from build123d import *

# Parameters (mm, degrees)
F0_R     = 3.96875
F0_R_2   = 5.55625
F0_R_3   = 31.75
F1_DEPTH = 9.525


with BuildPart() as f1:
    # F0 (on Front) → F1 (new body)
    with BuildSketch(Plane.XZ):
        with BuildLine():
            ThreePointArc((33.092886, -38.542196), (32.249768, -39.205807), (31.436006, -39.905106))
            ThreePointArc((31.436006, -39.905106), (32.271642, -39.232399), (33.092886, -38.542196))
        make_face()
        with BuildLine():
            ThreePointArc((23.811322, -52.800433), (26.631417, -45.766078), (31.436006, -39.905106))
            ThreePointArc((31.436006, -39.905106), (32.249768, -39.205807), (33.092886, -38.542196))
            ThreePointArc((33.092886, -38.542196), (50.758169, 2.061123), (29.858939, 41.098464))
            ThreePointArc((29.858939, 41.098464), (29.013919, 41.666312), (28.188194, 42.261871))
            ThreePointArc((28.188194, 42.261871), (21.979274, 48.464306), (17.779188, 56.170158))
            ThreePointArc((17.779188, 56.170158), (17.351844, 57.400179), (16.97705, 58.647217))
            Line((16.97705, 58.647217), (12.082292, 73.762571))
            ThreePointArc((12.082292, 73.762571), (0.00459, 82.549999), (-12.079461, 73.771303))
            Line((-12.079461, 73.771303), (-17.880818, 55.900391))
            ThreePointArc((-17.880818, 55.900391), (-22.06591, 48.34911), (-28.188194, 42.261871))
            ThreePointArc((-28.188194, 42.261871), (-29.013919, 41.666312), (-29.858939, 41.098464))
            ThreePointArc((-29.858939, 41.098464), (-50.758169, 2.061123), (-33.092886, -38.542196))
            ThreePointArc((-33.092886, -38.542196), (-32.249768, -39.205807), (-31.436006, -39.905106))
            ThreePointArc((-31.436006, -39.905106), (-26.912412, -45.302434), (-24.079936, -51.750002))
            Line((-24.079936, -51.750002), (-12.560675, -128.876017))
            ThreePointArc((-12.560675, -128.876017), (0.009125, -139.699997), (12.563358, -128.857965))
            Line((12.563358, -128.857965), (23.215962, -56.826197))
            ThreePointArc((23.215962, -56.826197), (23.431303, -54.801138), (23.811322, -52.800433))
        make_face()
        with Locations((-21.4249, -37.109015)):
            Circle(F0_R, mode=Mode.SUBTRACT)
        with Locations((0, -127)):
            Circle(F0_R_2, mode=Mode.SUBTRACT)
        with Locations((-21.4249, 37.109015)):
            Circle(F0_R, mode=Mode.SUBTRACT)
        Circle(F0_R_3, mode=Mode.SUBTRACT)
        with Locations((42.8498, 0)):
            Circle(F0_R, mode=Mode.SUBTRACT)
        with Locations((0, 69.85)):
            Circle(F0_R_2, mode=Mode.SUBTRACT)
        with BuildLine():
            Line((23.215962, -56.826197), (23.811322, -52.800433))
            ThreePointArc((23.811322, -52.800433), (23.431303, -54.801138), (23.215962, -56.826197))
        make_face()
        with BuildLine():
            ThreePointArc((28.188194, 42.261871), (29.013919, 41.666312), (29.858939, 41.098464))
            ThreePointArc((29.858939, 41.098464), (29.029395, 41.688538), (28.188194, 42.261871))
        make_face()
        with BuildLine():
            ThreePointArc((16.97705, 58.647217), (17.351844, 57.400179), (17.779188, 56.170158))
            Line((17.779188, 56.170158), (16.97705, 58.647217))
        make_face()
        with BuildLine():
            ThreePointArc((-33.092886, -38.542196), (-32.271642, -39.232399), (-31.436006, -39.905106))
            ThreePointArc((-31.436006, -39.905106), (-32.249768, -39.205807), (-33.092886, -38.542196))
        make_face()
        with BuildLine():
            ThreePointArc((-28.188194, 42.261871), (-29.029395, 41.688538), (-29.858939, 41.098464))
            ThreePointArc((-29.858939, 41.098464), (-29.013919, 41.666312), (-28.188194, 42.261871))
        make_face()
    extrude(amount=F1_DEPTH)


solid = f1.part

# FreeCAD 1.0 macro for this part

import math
import FreeCAD as App
import Part
import Sketcher
Q = App.Units.Quantity

doc = App.newDocument("Part")
body = doc.addObject("PartDesign::Body", "Body")

# Sketch on XZ plane
sketch1 = body.newObject("Sketcher::SketchObject", "Sketch")
sketch1.AttachmentSupport = (doc.getObject("XZ_Plane"), [""])
sketch1.MapMode = "FlatFace"
sketch1.addGeometry(Part.ArcOfCircle(Part.Circle(App.Vector(0.001166, -0.001411, 0), App.Vector(0, 0, 1), 50.79817), math.radians(-51.770104), math.radians(-49.350097)), False)
sketch1.addGeometry(Part.ArcOfCircle(Part.Circle(App.Vector(-0.000001, 0, 0), App.Vector(0, 0, 1), 50.8), math.radians(-49.350135), math.radians(54.000768)), False)
sketch1.addGeometry(Part.ArcOfCircle(Part.Circle(App.Vector(-0.000757, -0.00107, 0), App.Vector(0, 0, 1), 50.801311), math.radians(54.000788), math.radians(56.297116)), False)
sketch1.addGeometry(Part.ArcOfCircle(Part.Circle(App.Vector(46.555209, 66.857013, 0), App.Vector(0, 0, 1), 30.696388), math.radians(-159.625982), math.radians(-126.751423)), False)
sketch1.addGeometry(Part.LineSegment(App.Vector(17.779188, 56.170158, 0), App.Vector(16.97705, 58.647217, 0)), False)
sketch1.addGeometry(Part.LineSegment(App.Vector(16.97705, 58.647217, 0), App.Vector(12.082292, 73.762571, 0)), False)
sketch1.addGeometry(Part.ArcOfCircle(Part.Circle(App.Vector(0, 69.85, 0), App.Vector(0, 0, 1), 12.7), math.radians(17.943347), math.radians(162.01524)), False)
sketch1.addGeometry(Part.LineSegment(App.Vector(-12.079461, 73.771303, 0), App.Vector(-17.880818, 55.900391, 0)), False)
sketch1.addGeometry(Part.ArcOfCircle(Part.Circle(App.Vector(-46.555215, 66.857018, 0), App.Vector(0, 0, 1), 30.696396), math.radians(-53.248574), math.radians(-20.912101)), False)
sketch1.addGeometry(Part.ArcOfCircle(Part.Circle(App.Vector(0.000757, -0.00107, 0), App.Vector(0, 0, 1), 50.801311), math.radians(123.702884), math.radians(125.999212)), False)
sketch1.addGeometry(Part.ArcOfCircle(Part.Circle(App.Vector(0.000001, 0, 0), App.Vector(0, 0, 1), 50.8), math.radians(125.999232), math.radians(229.350135)), False)
sketch1.addGeometry(Part.ArcOfCircle(Part.Circle(App.Vector(-0.001166, -0.001411, 0), App.Vector(0, 0, 1), 50.79817), math.radians(-130.649903), math.radians(-128.229896)), False)
sketch1.addGeometry(Part.ArcOfCircle(Part.Circle(App.Vector(-48.076139, -58.445804, 0), App.Vector(0, 0, 1), 24.912879), math.radians(15.591012), math.radians(48.09227)), False)
sketch1.addGeometry(Part.LineSegment(App.Vector(-24.079936, -51.750002, 0), App.Vector(-12.560675, -128.876017, 0)), False)
sketch1.addGeometry(Part.ArcOfCircle(Part.Circle(App.Vector(0, -127, 0), App.Vector(0, 0, 1), 12.7), math.radians(-171.505305), math.radians(-8.412359)), False)
sketch1.addGeometry(Part.LineSegment(App.Vector(12.563358, -128.857965, 0), App.Vector(23.215962, -56.826197, 0)), False)
sketch1.addGeometry(Part.LineSegment(App.Vector(23.215962, -56.826197, 0), App.Vector(23.811322, -52.800433, 0)), False)
sketch1.addGeometry(Part.ArcOfCircle(Part.Circle(App.Vector(48.076131, -58.445801, 0), App.Vector(0, 0, 1), 24.912871), math.radians(131.907721), math.radians(166.902755)), False)
sketch1.addGeometry(Part.Circle(App.Vector(0, -127, 0), App.Vector(0, 0, 1), 5.55625), False)
sketch1.addGeometry(Part.Circle(App.Vector(-21.4249, -37.109015, 0), App.Vector(0, 0, 1), 3.96875), False)
sketch1.addGeometry(Part.Circle(App.Vector(0, 0, 0), App.Vector(0, 0, 1), 31.75), False)
sketch1.addGeometry(Part.Circle(App.Vector(-21.4249, 37.109015, 0), App.Vector(0, 0, 1), 3.96875), False)
sketch1.addGeometry(Part.Circle(App.Vector(0, 69.85, 0), App.Vector(0, 0, 1), 5.55625), False)
sketch1.addGeometry(Part.Circle(App.Vector(42.8498, 0, 0), App.Vector(0, 0, 1), 3.96875), False)
sketch1.addConstraint(Sketcher.Constraint("Coincident", 0, 2, 1, 1))
sketch1.addConstraint(Sketcher.Constraint("Coincident", 1, 2, 2, 1))
sketch1.addConstraint(Sketcher.Constraint("Coincident", 2, 2, 3, 2))
sketch1.addConstraint(Sketcher.Constraint("Coincident", 3, 1, 4, 1))
sketch1.addConstraint(Sketcher.Constraint("Coincident", 4, 2, 5, 1))
sketch1.addConstraint(Sketcher.Constraint("Coincident", 5, 2, 6, 1))
sketch1.addConstraint(Sketcher.Constraint("Coincident", 6, 2, 7, 1))
sketch1.addConstraint(Sketcher.Constraint("Coincident", 7, 2, 8, 2))
sketch1.addConstraint(Sketcher.Constraint("Coincident", 8, 1, 9, 1))
sketch1.addConstraint(Sketcher.Constraint("Coincident", 9, 2, 10, 1))
sketch1.addConstraint(Sketcher.Constraint("Coincident", 10, 2, 11, 1))
sketch1.addConstraint(Sketcher.Constraint("Coincident", 11, 2, 12, 2))
sketch1.addConstraint(Sketcher.Constraint("Coincident", 12, 1, 13, 1))
sketch1.addConstraint(Sketcher.Constraint("Coincident", 13, 2, 14, 1))
sketch1.addConstraint(Sketcher.Constraint("Coincident", 14, 2, 15, 1))
sketch1.addConstraint(Sketcher.Constraint("Coincident", 15, 2, 16, 1))
sketch1.addConstraint(Sketcher.Constraint("Coincident", 16, 2, 17, 2))
sketch1.addConstraint(Sketcher.Constraint("Coincident", 17, 1, 0, 1))
sketch1.addConstraint(Sketcher.Constraint("Coincident", 1, 3, -1, 1))
sketch1.addConstraint(Sketcher.Constraint("Coincident", 10, 3, -1, 1))
sketch1.addConstraint(Sketcher.Constraint("Coincident", 20, 3, -1, 1))
sketch1.addConstraint(Sketcher.Constraint("Coincident", 18, 3, 14, 3))
sketch1.addConstraint(Sketcher.Constraint("Coincident", 22, 3, 6, 3))
sketch1.addConstraint(Sketcher.Constraint("PointOnObject", 6, 3, -2))
sketch1.addConstraint(Sketcher.Constraint("PointOnObject", 14, 3, -2))
sketch1.addConstraint(Sketcher.Constraint("PointOnObject", 23, 3, -1))
sketch1.addConstraint(Sketcher.Constraint("Radius", 1, Q("2 in")))
sketch1.addConstraint(Sketcher.Constraint("Radius", 10, Q("2 in")))
sketch1.addConstraint(Sketcher.Constraint("Diameter", 20, Q("2.5 in")))
sketch1.addConstraint(Sketcher.Constraint("Radius", 6, Q("0.5 in")))
sketch1.addConstraint(Sketcher.Constraint("Radius", 14, Q("0.5 in")))
sketch1.addConstraint(Sketcher.Constraint("Diameter", 18, Q("0.4375 in")))
sketch1.addConstraint(Sketcher.Constraint("Diameter", 19, Q("0.3125 in")))
sketch1.addConstraint(Sketcher.Constraint("Diameter", 21, Q("0.3125 in")))
sketch1.addConstraint(Sketcher.Constraint("Diameter", 22, Q("0.4375 in")))
sketch1.addConstraint(Sketcher.Constraint("Diameter", 23, Q("0.3125 in")))
sketch1.addConstraint(Sketcher.Constraint("DistanceY", 14, 3, -1, 1, Q("5 in")))
sketch1.addConstraint(Sketcher.Constraint("DistanceY", -1, 1, 6, 3, Q("2.75 in")))
sketch1.addConstraint(Sketcher.Constraint("DistanceX", -1, 1, 23, 3, Q("1.687 in")))
sketch1.addConstraint(Sketcher.Constraint("Radius", 0, Q("50.79817 mm")))
sketch1.addConstraint(Sketcher.Constraint("Radius", 2, Q("50.801311 mm")))
sketch1.addConstraint(Sketcher.Constraint("Radius", 3, Q("30.696388 mm")))
sketch1.addConstraint(Sketcher.Constraint("Radius", 9, Q("50.801311 mm")))
sketch1.addConstraint(Sketcher.Constraint("Radius", 11, Q("50.79817 mm")))
sketch1.addConstraint(Sketcher.Constraint("Radius", 12, Q("24.912879 mm")))
sketch1.addConstraint(Sketcher.Constraint("Radius", 17, Q("24.912871 mm")))
sketch1.addConstraint(Sketcher.Constraint("DistanceX", 19, 3, -1, 1, Q("0.8435 in")))
sketch1.addConstraint(Sketcher.Constraint("DistanceX", 21, 3, -1, 1, Q("0.8435 in")))
sketch1.addConstraint(Sketcher.Constraint("Radius", 8, Q("30.696396 mm")))
sketch1.addConstraint(Sketcher.Constraint("DistanceX", 7, 2, 6, 2, Q("0.2283999 in")))
sketch1.addConstraint(Sketcher.Constraint("Distance", 4, Q("2.603699 mm")))
sketch1.addConstraint(Sketcher.Constraint("Distance", 15, Q("72.815202 mm")))
sketch1.addConstraint(Sketcher.Constraint("DistanceY", 17, 3, -1, 1, Q("58.445801 mm")))
sketch1.addConstraint(Sketcher.Constraint("DistanceY", 12, 1, -1, 1, Q("51.750002 mm")))
sketch1.addConstraint(Sketcher.Constraint("DistanceY", 12, 3, 11, 2, Q("18.540698 mm")))
sketch1.addConstraint(Sketcher.Constraint("DistanceY", 15, 2, 0, 2, Q("18.284001 mm")))
sketch1.addConstraint(Sketcher.Constraint("Distance", 16, Q("4.069549 mm")))
sketch1.addConstraint(Sketcher.Constraint("DistanceY", 0, 3, -1, 1, Q("0.001411 mm")))
sketch1.addConstraint(Sketcher.Constraint("DistanceY", 2, 3, -1, 1, Q("0.00107 mm")))
sketch1.addConstraint(Sketcher.Constraint("DistanceX", -1, 1, 3, 3, Q("46.555209 mm")))
sketch1.addConstraint(Sketcher.Constraint("DistanceY", 9, 3, -1, 1, Q("0.00107 mm")))
sketch1.addConstraint(Sketcher.Constraint("DistanceY", 11, 3, -1, 1, Q("0.001411 mm")))
sketch1.addConstraint(Sketcher.Constraint("DistanceX", 12, 3, -1, 1, Q("48.076139 mm")))
sketch1.addConstraint(Sketcher.Constraint("DistanceX", -1, 1, 17, 3, Q("48.076131 mm")))
sketch1.addConstraint(Sketcher.Constraint("DistanceX", -1, 1, 1, 2, Q("29.858939 mm")))
sketch1.addConstraint(Sketcher.Constraint("DistanceY", -1, 1, 2, 2, Q("42.261871 mm")))
sketch1.addConstraint(Sketcher.Constraint("DistanceX", -1, 1, 4, 2, Q("16.97705 mm")))
sketch1.addConstraint(Sketcher.Constraint("DistanceY", -1, 1, 5, 2, Q("73.762571 mm")))
sketch1.addConstraint(Sketcher.Constraint("DistanceX", 6, 2, -1, 1, Q("12.079461 mm")))
sketch1.addConstraint(Sketcher.Constraint("DistanceY", -1, 1, 7, 2, Q("55.900391 mm")))
sketch1.addConstraint(Sketcher.Constraint("DistanceY", -1, 1, 8, 1, Q("42.261871 mm")))
sketch1.addConstraint(Sketcher.Constraint("DistanceX", 9, 2, -1, 1, Q("29.858939 mm")))
sketch1.addConstraint(Sketcher.Constraint("DistanceY", 12, 3, 19, 3, Q("21.336789 mm")))
sketch1.addConstraint(Sketcher.Constraint("DistanceX", 0, 3, 0, 2, Q("33.09172 mm")))
sketch1.addConstraint(Sketcher.Constraint("DistanceX", 3, 1, 1, 2, Q("12.079751 mm")))
sketch1.addConstraint(Sketcher.Constraint("DistanceY", 21, 3, 9, 2, Q("3.989449 mm")))
sketch1.addConstraint(Sketcher.Constraint("DistanceY", 10, 2, 19, 3, Q("1.433181 mm")))
sketch1.addConstraint(Sketcher.Constraint("DistanceX", 12, 1, 13, 2, Q("11.519261 mm")))
sketch1.addConstraint(Sketcher.Constraint("DistanceX", 15, 2, 17, 3, Q("24.860169 mm")))
pad1 = body.newObject("PartDesign::Pad", "Pad")
pad1.Profile = sketch1
pad1.Length = Q("0.375 in")

doc.recompute()
